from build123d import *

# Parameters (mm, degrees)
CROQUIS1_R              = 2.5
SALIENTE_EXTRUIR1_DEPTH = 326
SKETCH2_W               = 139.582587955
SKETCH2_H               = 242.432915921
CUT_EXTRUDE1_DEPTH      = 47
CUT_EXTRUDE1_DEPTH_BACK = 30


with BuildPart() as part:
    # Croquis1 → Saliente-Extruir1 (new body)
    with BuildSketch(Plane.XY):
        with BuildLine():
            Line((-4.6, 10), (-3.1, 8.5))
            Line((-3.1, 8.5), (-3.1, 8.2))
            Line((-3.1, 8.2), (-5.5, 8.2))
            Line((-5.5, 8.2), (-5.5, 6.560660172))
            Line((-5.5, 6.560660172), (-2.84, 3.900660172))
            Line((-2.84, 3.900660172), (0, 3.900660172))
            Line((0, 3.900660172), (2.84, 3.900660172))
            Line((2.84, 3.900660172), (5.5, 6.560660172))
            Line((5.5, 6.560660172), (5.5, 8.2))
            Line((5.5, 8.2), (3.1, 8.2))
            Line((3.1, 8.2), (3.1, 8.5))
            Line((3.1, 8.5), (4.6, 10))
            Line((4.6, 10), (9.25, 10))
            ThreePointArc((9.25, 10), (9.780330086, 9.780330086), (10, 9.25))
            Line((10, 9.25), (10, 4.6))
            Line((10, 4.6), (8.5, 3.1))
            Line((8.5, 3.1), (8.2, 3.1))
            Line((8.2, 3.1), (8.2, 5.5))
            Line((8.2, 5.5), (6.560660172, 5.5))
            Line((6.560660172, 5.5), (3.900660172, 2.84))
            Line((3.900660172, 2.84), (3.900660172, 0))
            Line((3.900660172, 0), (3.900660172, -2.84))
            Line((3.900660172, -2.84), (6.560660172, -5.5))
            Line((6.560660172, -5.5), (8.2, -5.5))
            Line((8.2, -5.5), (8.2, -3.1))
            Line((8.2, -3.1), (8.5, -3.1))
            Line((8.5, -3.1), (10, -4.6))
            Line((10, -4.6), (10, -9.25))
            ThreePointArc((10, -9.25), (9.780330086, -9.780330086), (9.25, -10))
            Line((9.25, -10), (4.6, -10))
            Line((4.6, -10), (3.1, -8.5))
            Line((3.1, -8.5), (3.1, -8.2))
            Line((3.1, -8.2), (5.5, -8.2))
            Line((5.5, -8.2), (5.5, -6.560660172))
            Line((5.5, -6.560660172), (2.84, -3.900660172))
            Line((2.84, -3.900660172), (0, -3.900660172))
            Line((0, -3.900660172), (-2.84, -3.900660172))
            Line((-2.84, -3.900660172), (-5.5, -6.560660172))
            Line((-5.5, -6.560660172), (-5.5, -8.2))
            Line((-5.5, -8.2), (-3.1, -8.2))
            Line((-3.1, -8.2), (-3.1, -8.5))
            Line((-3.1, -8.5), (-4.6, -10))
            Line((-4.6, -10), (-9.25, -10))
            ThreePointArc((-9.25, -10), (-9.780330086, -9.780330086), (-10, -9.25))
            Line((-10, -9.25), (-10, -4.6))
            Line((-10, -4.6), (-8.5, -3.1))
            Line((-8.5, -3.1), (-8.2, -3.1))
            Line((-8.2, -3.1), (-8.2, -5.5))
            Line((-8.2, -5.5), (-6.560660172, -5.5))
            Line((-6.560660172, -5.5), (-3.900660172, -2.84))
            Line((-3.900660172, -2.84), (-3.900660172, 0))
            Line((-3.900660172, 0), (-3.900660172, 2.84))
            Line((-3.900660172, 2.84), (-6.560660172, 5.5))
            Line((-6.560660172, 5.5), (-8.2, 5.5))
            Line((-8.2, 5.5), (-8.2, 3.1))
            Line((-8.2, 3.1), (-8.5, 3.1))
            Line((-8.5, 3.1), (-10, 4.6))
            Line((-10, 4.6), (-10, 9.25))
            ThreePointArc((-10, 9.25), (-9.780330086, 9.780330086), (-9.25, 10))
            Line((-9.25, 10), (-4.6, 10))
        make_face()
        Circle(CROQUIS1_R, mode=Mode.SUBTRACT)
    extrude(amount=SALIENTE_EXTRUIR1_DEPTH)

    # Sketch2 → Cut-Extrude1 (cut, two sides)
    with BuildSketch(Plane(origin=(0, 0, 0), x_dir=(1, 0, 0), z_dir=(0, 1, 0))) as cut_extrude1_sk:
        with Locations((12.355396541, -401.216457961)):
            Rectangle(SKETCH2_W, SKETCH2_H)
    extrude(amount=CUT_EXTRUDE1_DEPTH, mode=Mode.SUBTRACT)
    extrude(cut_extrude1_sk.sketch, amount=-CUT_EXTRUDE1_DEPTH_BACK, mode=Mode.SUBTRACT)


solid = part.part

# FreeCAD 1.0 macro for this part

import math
import FreeCAD as App
import Part
import Sketcher
from FreeCAD import Vector


def add_polygon(sketch, points):
    """Adds a closed chain of lines whose ends are joined by coincident constraints."""
    first, n = sketch.GeometryCount, len(points)
    for a, b in zip(points, points[1:] + points[:1]):
        sketch.addGeometry(Part.LineSegment(App.Vector(*a, 0), App.Vector(*b, 0)), False)
    for i in range(n):
        sketch.addConstraint(Sketcher.Constraint("Coincident", first + i, 2, first + (i + 1) % n, 1))

doc = App.newDocument("Part")
params = doc.addObject("Spreadsheet::Sheet", "Params")
for row, (alias, value) in enumerate([
    ("sketch1_diameter", "5 mm"),
    ("sketch1_radius", "0.75 mm"),
    ("sketch1_width", "0.3 mm"),
    ("sketch1_width2", "2.4 mm"),
    ("sketch1_width3", "4.65 mm"),
    ("pad1_length", "326 mm"),
], start=1):
    params.set(f"A{row}", alias)
    params.set(f"B{row}", "=" + value)
    params.setAlias(f"B{row}", alias)

body = doc.addObject("PartDesign::Body", "Body")

# Sketch on XY plane
sketch1 = body.newObject("Sketcher::SketchObject", "Sketch")
sketch1.AttachmentSupport = (doc.getObject("XY_Plane"), [""])
sketch1.MapMode = "FlatFace"
sketch1.addGeometry([
    Part.LineSegment(Vector(-3.1, 8.5, 0), Vector(-4.6, 10, 0)),  # 0
    Part.LineSegment(Vector(-4.6, 10, 0), Vector(-9.25, 10, 0)),  # 1
    Part.ArcOfCircle(Part.Circle(Vector(-9.25, 9.25, 0), Vector(0, 0, 1), 0.75), math.radians(90), math.radians(180)),  # 2
    Part.LineSegment(Vector(-10, 9.25, 0), Vector(-10, 4.6, 0)),  # 3
    Part.LineSegment(Vector(-10, 4.6, 0), Vector(-8.5, 3.1, 0)),  # 4
    Part.LineSegment(Vector(-8.5, 3.1, 0), Vector(-8.2, 3.1, 0)),  # 5
    Part.LineSegment(Vector(-8.2, 3.1, 0), Vector(-8.2, 5.5, 0)),  # 6
    Part.LineSegment(Vector(-8.2, 5.5, 0), Vector(-6.56066, 5.5, 0)),  # 7
    Part.LineSegment(Vector(-6.56066, 5.5, 0), Vector(-3.90066, 2.84, 0)),  # 8
    Part.LineSegment(Vector(-3.90066, 2.84, 0), Vector(-3.90066, -2.84, 0)),  # 9
    Part.LineSegment(Vector(-3.90066, -2.84, 0), Vector(-6.56066, -5.5, 0)),  # 10
    Part.LineSegment(Vector(-6.56066, -5.5, 0), Vector(-8.2, -5.5, 0)),  # 11
    Part.LineSegment(Vector(-8.2, -5.5, 0), Vector(-8.2, -3.1, 0)),  # 12
    Part.LineSegment(Vector(-8.2, -3.1, 0), Vector(-8.5, -3.1, 0)),  # 13
    Part.LineSegment(Vector(-8.5, -3.1, 0), Vector(-10, -4.6, 0)),  # 14
    Part.LineSegment(Vector(-10, -4.6, 0), Vector(-10, -9.25, 0)),  # 15
    Part.ArcOfCircle(Part.Circle(Vector(-9.25, -9.25, 0), Vector(0, 0, 1), 0.75), math.radians(180), math.radians(270)),  # 16
    Part.LineSegment(Vector(-9.25, -10, 0), Vector(-4.6, -10, 0)),  # 17
    Part.LineSegment(Vector(-4.6, -10, 0), Vector(-3.1, -8.5, 0)),  # 18
    Part.LineSegment(Vector(-3.1, -8.5, 0), Vector(-3.1, -8.2, 0)),  # 19
    Part.LineSegment(Vector(-3.1, -8.2, 0), Vector(-5.5, -8.2, 0)),  # 20
    Part.LineSegment(Vector(-5.5, -8.2, 0), Vector(-5.5, -6.56066, 0)),  # 21
    Part.LineSegment(Vector(-5.5, -6.56066, 0), Vector(-2.84, -3.90066, 0)),  # 22
    Part.LineSegment(Vector(-2.84, -3.90066, 0), Vector(2.84, -3.90066, 0)),  # 23
    Part.LineSegment(Vector(2.84, -3.90066, 0), Vector(5.5, -6.56066, 0)),  # 24
    Part.LineSegment(Vector(5.5, -6.56066, 0), Vector(5.5, -8.2, 0)),  # 25
    Part.LineSegment(Vector(5.5, -8.2, 0), Vector(3.1, -8.2, 0)),  # 26
    Part.LineSegment(Vector(3.1, -8.2, 0), Vector(3.1, -8.5, 0)),  # 27
    Part.LineSegment(Vector(3.1, -8.5, 0), Vector(4.6, -10, 0)),  # 28
    Part.LineSegment(Vector(4.6, -10, 0), Vector(9.25, -10, 0)),  # 29
    Part.ArcOfCircle(Part.Circle(Vector(9.25, -9.25, 0), Vector(0, 0, 1), 0.75), math.radians(-90), math.radians(0)),  # 30
    Part.LineSegment(Vector(10, -9.25, 0), Vector(10, -4.6, 0)),  # 31
    Part.LineSegment(Vector(10, -4.6, 0), Vector(8.5, -3.1, 0)),  # 32
    Part.LineSegment(Vector(8.5, -3.1, 0), Vector(8.2, -3.1, 0)),  # 33
    Part.LineSegment(Vector(8.2, -3.1, 0), Vector(8.2, -5.5, 0)),  # 34
    Part.LineSegment(Vector(8.2, -5.5, 0), Vector(6.56066, -5.5, 0)),  # 35
    Part.LineSegment(Vector(6.56066, -5.5, 0), Vector(3.90066, -2.84, 0)),  # 36
    Part.LineSegment(Vector(3.90066, -2.84, 0), Vector(3.90066, 2.84, 0)),  # 37
    Part.LineSegment(Vector(3.90066, 2.84, 0), Vector(6.56066, 5.5, 0)),  # 38
    Part.LineSegment(Vector(6.56066, 5.5, 0), Vector(8.2, 5.5, 0)),  # 39
    Part.LineSegment(Vector(8.2, 5.5, 0), Vector(8.2, 3.1, 0)),  # 40
    Part.LineSegment(Vector(8.2, 3.1, 0), Vector(8.5, 3.1, 0)),  # 41
    Part.LineSegment(Vector(8.5, 3.1, 0), Vector(10, 4.6, 0)),  # 42
    Part.LineSegment(Vector(10, 4.6, 0), Vector(10, 9.25, 0)),  # 43
    Part.ArcOfCircle(Part.Circle(Vector(9.25, 9.25, 0), Vector(0, 0, 1), 0.75), math.radians(0), math.radians(90)),  # 44
    Part.LineSegment(Vector(9.25, 10, 0), Vector(4.6, 10, 0)),  # 45
    Part.LineSegment(Vector(4.6, 10, 0), Vector(3.1, 8.5, 0)),  # 46
    Part.LineSegment(Vector(3.1, 8.5, 0), Vector(3.1, 8.2, 0)),  # 47
    Part.LineSegment(Vector(3.1, 8.2, 0), Vector(5.5, 8.2, 0)),  # 48
    Part.LineSegment(Vector(5.5, 8.2, 0), Vector(5.5, 6.56066, 0)),  # 49
    Part.LineSegment(Vector(5.5, 6.56066, 0), Vector(2.84, 3.90066, 0)),  # 50
    Part.LineSegment(Vector(2.84, 3.90066, 0), Vector(-2.84, 3.90066, 0)),  # 51
    Part.LineSegment(Vector(-2.84, 3.90066, 0), Vector(-5.5, 6.56066, 0)),  # 52
    Part.LineSegment(Vector(-5.5, 6.56066, 0), Vector(-5.5, 8.2, 0)),  # 53
    Part.LineSegment(Vector(-5.5, 8.2, 0), Vector(-3.1, 8.2, 0)),  # 54
    Part.LineSegment(Vector(-3.1, 8.2, 0), Vector(-3.1, 8.5, 0)),  # 55
    Part.Circle(Vector(0, 0, 0), Vector(0, 0, 1), 2.5),  # 56
], False)
sketch1.addConstraint([
    Sketcher.Constraint("Coincident", 0, 2, 1, 1),
    Sketcher.Constraint("Tangent", 1, 2, 2, 1),
    Sketcher.Constraint("Tangent", 2, 2, 3, 1),
    Sketcher.Constraint("Coincident", 3, 2, 4, 1),
    Sketcher.Constraint("Coincident", 4, 2, 5, 1),
    Sketcher.Constraint("Coincident", 5, 2, 6, 1),
    Sketcher.Constraint("Coincident", 6, 2, 7, 1),
    Sketcher.Constraint("Coincident", 7, 2, 8, 1),
    Sketcher.Constraint("Coincident", 8, 2, 9, 1),
    Sketcher.Constraint("Coincident", 9, 2, 10, 1),
    Sketcher.Constraint("Coincident", 10, 2, 11, 1),
    Sketcher.Constraint("Coincident", 11, 2, 12, 1),
    Sketcher.Constraint("Coincident", 12, 2, 13, 1),
    Sketcher.Constraint("Coincident", 13, 2, 14, 1),
    Sketcher.Constraint("Coincident", 14, 2, 15, 1),
    Sketcher.Constraint("Tangent", 15, 2, 16, 1),
    Sketcher.Constraint("Tangent", 16, 2, 17, 1),
    Sketcher.Constraint("Coincident", 17, 2, 18, 1),
    Sketcher.Constraint("Coincident", 18, 2, 19, 1),
    Sketcher.Constraint("Coincident", 19, 2, 20, 1),
    Sketcher.Constraint("Coincident", 20, 2, 21, 1),
    Sketcher.Constraint("Coincident", 21, 2, 22, 1),
    Sketcher.Constraint("Coincident", 22, 2, 23, 1),
    Sketcher.Constraint("Coincident", 23, 2, 24, 1),
    Sketcher.Constraint("Coincident", 24, 2, 25, 1),
    Sketcher.Constraint("Coincident", 25, 2, 26, 1),
    Sketcher.Constraint("Coincident", 26, 2, 27, 1),
    Sketcher.Constraint("Coincident", 27, 2, 28, 1),
    Sketcher.Constraint("Coincident", 28, 2, 29, 1),
    Sketcher.Constraint("Tangent", 29, 2, 30, 1),
    Sketcher.Constraint("Tangent", 30, 2, 31, 1),
    Sketcher.Constraint("Coincident", 31, 2, 32, 1),
    Sketcher.Constraint("Coincident", 32, 2, 33, 1),
    Sketcher.Constraint("Coincident", 33, 2, 34, 1),
    Sketcher.Constraint("Coincident", 34, 2, 35, 1),
    Sketcher.Constraint("Coincident", 35, 2, 36, 1),
    Sketcher.Constraint("Coincident", 36, 2, 37, 1),
    Sketcher.Constraint("Coincident", 37, 2, 38, 1),
    Sketcher.Constraint("Coincident", 38, 2, 39, 1),
    Sketcher.Constraint("Coincident", 39, 2, 40, 1),
    Sketcher.Constraint("Coincident", 40, 2, 41, 1),
    Sketcher.Constraint("Coincident", 41, 2, 42, 1),
    Sketcher.Constraint("Coincident", 42, 2, 43, 1),
    Sketcher.Constraint("Tangent", 43, 2, 44, 1),
    Sketcher.Constraint("Tangent", 44, 2, 45, 1),
    Sketcher.Constraint("Coincident", 45, 2, 46, 1),
    Sketcher.Constraint("Coincident", 46, 2, 47, 1),
    Sketcher.Constraint("Coincident", 47, 2, 48, 1),
    Sketcher.Constraint("Coincident", 48, 2, 49, 1),
    Sketcher.Constraint("Coincident", 49, 2, 50, 1),
    Sketcher.Constraint("Coincident", 50, 2, 51, 1),
    Sketcher.Constraint("Coincident", 51, 2, 52, 1),
    Sketcher.Constraint("Coincident", 52, 2, 53, 1),
    Sketcher.Constraint("Coincident", 53, 2, 54, 1),
    Sketcher.Constraint("Coincident", 54, 2, 55, 1),
    Sketcher.Constraint("Coincident", 55, 2, 0, 1),
    Sketcher.Constraint("Horizontal", 1),
    Sketcher.Constraint("Vertical", 3),
    Sketcher.Constraint("Horizontal", 5),
    Sketcher.Constraint("Vertical", 6),
    Sketcher.Constraint("Horizontal", 7),
    Sketcher.Constraint("Vertical", 9),
    Sketcher.Constraint("Horizontal", 11),
    Sketcher.Constraint("Vertical", 12),
    Sketcher.Constraint("Horizontal", 13),
    Sketcher.Constraint("Vertical", 15),
    Sketcher.Constraint("Horizontal", 17),
    Sketcher.Constraint("Vertical", 19),
    Sketcher.Constraint("Horizontal", 20),
    Sketcher.Constraint("Vertical", 21),
    Sketcher.Constraint("Horizontal", 23),
    Sketcher.Constraint("Vertical", 25),
    Sketcher.Constraint("Horizontal", 26),
    Sketcher.Constraint("Vertical", 27),
    Sketcher.Constraint("Horizontal", 29),
    Sketcher.Constraint("Vertical", 31),
    Sketcher.Constraint("Horizontal", 33),
    Sketcher.Constraint("Vertical", 34),
    Sketcher.Constraint("Horizontal", 35),
    Sketcher.Constraint("Vertical", 37),
    Sketcher.Constraint("Horizontal", 39),
    Sketcher.Constraint("Vertical", 40),
    Sketcher.Constraint("Horizontal", 41),
    Sketcher.Constraint("Vertical", 43),
    Sketcher.Constraint("Horizontal", 45),
    Sketcher.Constraint("Vertical", 47),
    Sketcher.Constraint("Horizontal", 48),
    Sketcher.Constraint("Vertical", 49),
    Sketcher.Constraint("Horizontal", 51),
    Sketcher.Constraint("Vertical", 53),
    Sketcher.Constraint("Horizontal", 54),
    Sketcher.Constraint("Vertical", 55),
    Sketcher.Constraint("Coincident", 56, 3, -1, 1),
    Sketcher.Constraint("Equal", 2, 16),
    Sketcher.Constraint("Equal", 16, 30),
    Sketcher.Constraint("Equal", 30, 44),
    Sketcher.Constraint("Symmetric", 2, 3, 30, 3, -1, 1),
    Sketcher.Constraint("Symmetric", 16, 3, 44, 3, -1, 1),
    Sketcher.Constraint("Symmetric", 4, 2, 32, 2, -1, 1),
    Sketcher.Constraint("Symmetric", 6, 2, 34, 2, -1, 1),
    Sketcher.Constraint("Symmetric", 8, 2, 36, 2, -1, 1),
    Sketcher.Constraint("Symmetric", 10, 2, 38, 2, -1, 1),
    Sketcher.Constraint("Symmetric", 12, 2, 40, 2, -1, 1),
    Sketcher.Constraint("Symmetric", 18, 2, 46, 2, -1, 1),
    Sketcher.Constraint("Symmetric", 20, 2, 48, 2, -1, 1),
    Sketcher.Constraint("Symmetric", 22, 2, 50, 2, -1, 1),
    Sketcher.Constraint("Symmetric", 24, 2, 52, 2, -1, 1),
    Sketcher.Constraint("Symmetric", 26, 2, 54, 2, -1, 1),
    Sketcher.Constraint("Symmetric", 16, 3, 30, 3, -2),
    Sketcher.Constraint("Symmetric", 21, 2, 24, 2, -2),
    Sketcher.Constraint("Symmetric", 19, 2, 26, 2, -2),
    Sketcher.Constraint("Symmetric", 13, 2, 32, 2, -2),
    Sketcher.Constraint("Symmetric", 11, 2, 34, 2, -2),
    Sketcher.Constraint("Parallel", 0, 4),
    Sketcher.Constraint("Parallel", 4, 8),
    Sketcher.Constraint("Perpendicular", 8, 10),
    Sketcher.Constraint("Parallel", 10, 14),
    Sketcher.Constraint("Parallel", 14, 18),
    Sketcher.Constraint("Parallel", 18, 22),
    Sketcher.Constraint("Perpendicular", 22, 24),
    Sketcher.Constraint("Parallel", 24, 28),
    Sketcher.Constraint("Parallel", 28, 32),
    Sketcher.Constraint("Parallel", 32, 36),
    Sketcher.Constraint("Perpendicular", 36, 38),
    Sketcher.Constraint("Parallel", 38, 42),
    Sketcher.Constraint("Parallel", 42, 46),
    Sketcher.Constraint("Parallel", 46, 50),
    Sketcher.Constraint("Perpendicular", 50, 52),
    Sketcher.Constraint("Horizontal", 18, 2, 27, 2),
    Sketcher.Constraint("Horizontal", 14, 2, 31, 2),
    Sketcher.Constraint("Horizontal", 9, 2, 36, 2),
    Sketcher.Constraint("Horizontal", 3, 2, 42, 2),
    Sketcher.Constraint("Horizontal", 46, 2, 55, 2),
    Sketcher.Constraint("Equal", 45, 3),
    Sketcher.Constraint("Equal", 54, 6),
    Sketcher.Constraint("Equal", 51, 9),
    Sketcher.Constraint("Equal", 41, 19),
    Sketcher.Constraint("Equal", 39, 21),
    Sketcher.Constraint("Equal", 0, 4),
    Sketcher.Constraint("Equal", 10, 22),
    Sketcher.Constraint("Diameter", 56, 5.0),
    Sketcher.Constraint("Radius", 2, 0.75),
    Sketcher.Constraint("DistanceX", 5, 1, 5, 2, 0.3),
    Sketcher.Constraint("DistanceX", 20, 2, 20, 1, 2.4),
    Sketcher.Constraint("DistanceY", -1, 1, 0, 2, 10.0),
    Sketcher.Constraint("DistanceX", 1, 2, 1, 1, 4.65),
    Sketcher.Constraint("DistanceX", 23, 1, 23, 2, 5.68),
    Sketcher.Constraint("DistanceX", 4, 2, -1, 1, 8.5),
    Sketcher.Constraint("DistanceX", 7, 1, 7, 2, 1.63934),
])
sketch1.setExpression("Constraints[140]", "Params.sketch1_diameter")
sketch1.setExpression("Constraints[141]", "Params.sketch1_radius")
sketch1.setExpression("Constraints[142]", "Params.sketch1_width")
sketch1.setExpression("Constraints[143]", "Params.sketch1_width2")
sketch1.setExpression("Constraints[145]", "Params.sketch1_width3")
pad1 = body.newObject("PartDesign::Pad", "Pad")
pad1.Profile = sketch1
pad1.setExpression("Length", "Params.pad1_length")

# Sketch on XZ plane
sketch2 = body.newObject("Sketcher::SketchObject", "Sketch001")
sketch2.AttachmentSupport = (doc.getObject("XZ_Plane"), [""])
sketch2.MapMode = "FlatFace"
add_polygon(sketch2, [(-57.435897, 280), (-57.435897, 522.432916), (82.146691, 522.432916), (82.146691, 280)])  # lines 0-3
sketch2.addConstraint([
    Sketcher.Constraint("Vertical", 0),
    Sketcher.Constraint("Horizontal", 1),
    Sketcher.Constraint("Vertical", 2),
    Sketcher.Constraint("Horizontal", 3),
    Sketcher.Constraint("DistanceY", -1, 1, 2, 2, 280.0),
    Sketcher.Constraint("DistanceX", 1, 1, 1, 2, 139.582588),
    Sketcher.Constraint("DistanceY", 0, 1, 0, 2, 242.432916),
    Sketcher.Constraint("DistanceX", -1, 1, 1, 2, 82.146691),
])
pocket1 = body.newObject("PartDesign::Pocket", "Pocket")
pocket1.Profile = sketch2
pocket1.Type = "ThroughAll"
pocket1.Midplane = True

doc.recompute()
